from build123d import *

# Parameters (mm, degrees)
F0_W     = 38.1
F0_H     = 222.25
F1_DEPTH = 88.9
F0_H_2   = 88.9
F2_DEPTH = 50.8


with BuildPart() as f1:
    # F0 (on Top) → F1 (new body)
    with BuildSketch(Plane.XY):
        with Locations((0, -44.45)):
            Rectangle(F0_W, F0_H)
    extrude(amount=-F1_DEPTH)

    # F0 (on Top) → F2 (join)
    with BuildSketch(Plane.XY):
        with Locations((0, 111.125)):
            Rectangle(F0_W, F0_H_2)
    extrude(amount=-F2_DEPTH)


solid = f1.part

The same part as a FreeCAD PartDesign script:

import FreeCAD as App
import Part
import Sketcher
from FreeCAD import Vector
Q = App.Units.Quantity


def add_polygon(sketch, points):
    """Adds a closed chain of lines whose ends are joined by coincident constraints."""
    first, n = sketch.GeometryCount, len(points)
    for a, b in zip(points, points[1:] + points[:1]):
        sketch.addGeometry(Part.LineSegment(App.Vector(*a, 0), App.Vector(*b, 0)), False)
    for i in range(n):
        sketch.addConstraint(Sketcher.Constraint("Coincident", first + i, 2, first + (i + 1) % n, 1))

doc = App.newDocument("Part")
body = doc.addObject("PartDesign::Body", "Body")

# Sketch on XY plane
sketch1 = doc.addObject("Sketcher::SketchObject", "Sketch")
body.addObject(sketch1)
sketch1.AttachmentSupport = (doc.XY_Plane, [""])
sketch1.MapMode = "FlatFace"
add_polygon(sketch1, [(-19.05, 66.675), (-19.05, -155.575), (19.05, -155.575), (19.05, 66.675)])  # lines 0-3
sketch1.addConstraint([
    Sketcher.Constraint("Vertical", 0),
    Sketcher.Constraint("Horizontal", 1),
    Sketcher.Constraint("Vertical", 2),
    Sketcher.Constraint("Horizontal", 3),
    Sketcher.Constraint("DistanceX", 1, 1, 1, 2, Q("1.5 in")),
    Sketcher.Constraint("DistanceY", 0, 2, 0, 1, Q("8.75 in")),
    Sketcher.Constraint("DistanceX", 0, 2, -1, 1, Q("0.75 in")),
    Sketcher.Constraint("DistanceY", 0, 2, -1, 1, Q("6.125 in")),
])
pad1 = doc.addObject("PartDesign::Pad", "Pad")
body.addObject(pad1)
pad1.Profile = sketch1
pad1.Length = Q("3.5 in")
pad1.Reversed = True

# Sketch on XY plane
sketch2 = doc.addObject("Sketcher::SketchObject", "Sketch001")
body.addObject(sketch2)
sketch2.AttachmentSupport = (doc.XY_Plane, [""])
sketch2.MapMode = "FlatFace"
add_polygon(sketch2, [(-19.05, 155.575), (-19.05, 66.675), (19.05, 66.675), (19.05, 155.575)])  # lines 0-3
sketch2.addConstraint([
    Sketcher.Constraint("Vertical", 0),
    Sketcher.Constraint("Horizontal", 1),
    Sketcher.Constraint("Vertical", 2),
    Sketcher.Constraint("Horizontal", 3),
    Sketcher.Constraint("DistanceX", 1, 1, 1, 2, Q("1.5 in")),
    Sketcher.Constraint("DistanceY", 0, 2, 0, 1, Q("3.5 in")),
    Sketcher.Constraint("DistanceX", 0, 2, -1, 1, Q("0.75 in")),
    Sketcher.Constraint("DistanceY", -1, 1, 0, 2, Q("2.625 in")),
])
pad2 = doc.addObject("PartDesign::Pad", "Pad001")
body.addObject(pad2)
pad2.Profile = sketch2
pad2.Length = Q("2 in")
pad2.Reversed = True

doc.recompute()
